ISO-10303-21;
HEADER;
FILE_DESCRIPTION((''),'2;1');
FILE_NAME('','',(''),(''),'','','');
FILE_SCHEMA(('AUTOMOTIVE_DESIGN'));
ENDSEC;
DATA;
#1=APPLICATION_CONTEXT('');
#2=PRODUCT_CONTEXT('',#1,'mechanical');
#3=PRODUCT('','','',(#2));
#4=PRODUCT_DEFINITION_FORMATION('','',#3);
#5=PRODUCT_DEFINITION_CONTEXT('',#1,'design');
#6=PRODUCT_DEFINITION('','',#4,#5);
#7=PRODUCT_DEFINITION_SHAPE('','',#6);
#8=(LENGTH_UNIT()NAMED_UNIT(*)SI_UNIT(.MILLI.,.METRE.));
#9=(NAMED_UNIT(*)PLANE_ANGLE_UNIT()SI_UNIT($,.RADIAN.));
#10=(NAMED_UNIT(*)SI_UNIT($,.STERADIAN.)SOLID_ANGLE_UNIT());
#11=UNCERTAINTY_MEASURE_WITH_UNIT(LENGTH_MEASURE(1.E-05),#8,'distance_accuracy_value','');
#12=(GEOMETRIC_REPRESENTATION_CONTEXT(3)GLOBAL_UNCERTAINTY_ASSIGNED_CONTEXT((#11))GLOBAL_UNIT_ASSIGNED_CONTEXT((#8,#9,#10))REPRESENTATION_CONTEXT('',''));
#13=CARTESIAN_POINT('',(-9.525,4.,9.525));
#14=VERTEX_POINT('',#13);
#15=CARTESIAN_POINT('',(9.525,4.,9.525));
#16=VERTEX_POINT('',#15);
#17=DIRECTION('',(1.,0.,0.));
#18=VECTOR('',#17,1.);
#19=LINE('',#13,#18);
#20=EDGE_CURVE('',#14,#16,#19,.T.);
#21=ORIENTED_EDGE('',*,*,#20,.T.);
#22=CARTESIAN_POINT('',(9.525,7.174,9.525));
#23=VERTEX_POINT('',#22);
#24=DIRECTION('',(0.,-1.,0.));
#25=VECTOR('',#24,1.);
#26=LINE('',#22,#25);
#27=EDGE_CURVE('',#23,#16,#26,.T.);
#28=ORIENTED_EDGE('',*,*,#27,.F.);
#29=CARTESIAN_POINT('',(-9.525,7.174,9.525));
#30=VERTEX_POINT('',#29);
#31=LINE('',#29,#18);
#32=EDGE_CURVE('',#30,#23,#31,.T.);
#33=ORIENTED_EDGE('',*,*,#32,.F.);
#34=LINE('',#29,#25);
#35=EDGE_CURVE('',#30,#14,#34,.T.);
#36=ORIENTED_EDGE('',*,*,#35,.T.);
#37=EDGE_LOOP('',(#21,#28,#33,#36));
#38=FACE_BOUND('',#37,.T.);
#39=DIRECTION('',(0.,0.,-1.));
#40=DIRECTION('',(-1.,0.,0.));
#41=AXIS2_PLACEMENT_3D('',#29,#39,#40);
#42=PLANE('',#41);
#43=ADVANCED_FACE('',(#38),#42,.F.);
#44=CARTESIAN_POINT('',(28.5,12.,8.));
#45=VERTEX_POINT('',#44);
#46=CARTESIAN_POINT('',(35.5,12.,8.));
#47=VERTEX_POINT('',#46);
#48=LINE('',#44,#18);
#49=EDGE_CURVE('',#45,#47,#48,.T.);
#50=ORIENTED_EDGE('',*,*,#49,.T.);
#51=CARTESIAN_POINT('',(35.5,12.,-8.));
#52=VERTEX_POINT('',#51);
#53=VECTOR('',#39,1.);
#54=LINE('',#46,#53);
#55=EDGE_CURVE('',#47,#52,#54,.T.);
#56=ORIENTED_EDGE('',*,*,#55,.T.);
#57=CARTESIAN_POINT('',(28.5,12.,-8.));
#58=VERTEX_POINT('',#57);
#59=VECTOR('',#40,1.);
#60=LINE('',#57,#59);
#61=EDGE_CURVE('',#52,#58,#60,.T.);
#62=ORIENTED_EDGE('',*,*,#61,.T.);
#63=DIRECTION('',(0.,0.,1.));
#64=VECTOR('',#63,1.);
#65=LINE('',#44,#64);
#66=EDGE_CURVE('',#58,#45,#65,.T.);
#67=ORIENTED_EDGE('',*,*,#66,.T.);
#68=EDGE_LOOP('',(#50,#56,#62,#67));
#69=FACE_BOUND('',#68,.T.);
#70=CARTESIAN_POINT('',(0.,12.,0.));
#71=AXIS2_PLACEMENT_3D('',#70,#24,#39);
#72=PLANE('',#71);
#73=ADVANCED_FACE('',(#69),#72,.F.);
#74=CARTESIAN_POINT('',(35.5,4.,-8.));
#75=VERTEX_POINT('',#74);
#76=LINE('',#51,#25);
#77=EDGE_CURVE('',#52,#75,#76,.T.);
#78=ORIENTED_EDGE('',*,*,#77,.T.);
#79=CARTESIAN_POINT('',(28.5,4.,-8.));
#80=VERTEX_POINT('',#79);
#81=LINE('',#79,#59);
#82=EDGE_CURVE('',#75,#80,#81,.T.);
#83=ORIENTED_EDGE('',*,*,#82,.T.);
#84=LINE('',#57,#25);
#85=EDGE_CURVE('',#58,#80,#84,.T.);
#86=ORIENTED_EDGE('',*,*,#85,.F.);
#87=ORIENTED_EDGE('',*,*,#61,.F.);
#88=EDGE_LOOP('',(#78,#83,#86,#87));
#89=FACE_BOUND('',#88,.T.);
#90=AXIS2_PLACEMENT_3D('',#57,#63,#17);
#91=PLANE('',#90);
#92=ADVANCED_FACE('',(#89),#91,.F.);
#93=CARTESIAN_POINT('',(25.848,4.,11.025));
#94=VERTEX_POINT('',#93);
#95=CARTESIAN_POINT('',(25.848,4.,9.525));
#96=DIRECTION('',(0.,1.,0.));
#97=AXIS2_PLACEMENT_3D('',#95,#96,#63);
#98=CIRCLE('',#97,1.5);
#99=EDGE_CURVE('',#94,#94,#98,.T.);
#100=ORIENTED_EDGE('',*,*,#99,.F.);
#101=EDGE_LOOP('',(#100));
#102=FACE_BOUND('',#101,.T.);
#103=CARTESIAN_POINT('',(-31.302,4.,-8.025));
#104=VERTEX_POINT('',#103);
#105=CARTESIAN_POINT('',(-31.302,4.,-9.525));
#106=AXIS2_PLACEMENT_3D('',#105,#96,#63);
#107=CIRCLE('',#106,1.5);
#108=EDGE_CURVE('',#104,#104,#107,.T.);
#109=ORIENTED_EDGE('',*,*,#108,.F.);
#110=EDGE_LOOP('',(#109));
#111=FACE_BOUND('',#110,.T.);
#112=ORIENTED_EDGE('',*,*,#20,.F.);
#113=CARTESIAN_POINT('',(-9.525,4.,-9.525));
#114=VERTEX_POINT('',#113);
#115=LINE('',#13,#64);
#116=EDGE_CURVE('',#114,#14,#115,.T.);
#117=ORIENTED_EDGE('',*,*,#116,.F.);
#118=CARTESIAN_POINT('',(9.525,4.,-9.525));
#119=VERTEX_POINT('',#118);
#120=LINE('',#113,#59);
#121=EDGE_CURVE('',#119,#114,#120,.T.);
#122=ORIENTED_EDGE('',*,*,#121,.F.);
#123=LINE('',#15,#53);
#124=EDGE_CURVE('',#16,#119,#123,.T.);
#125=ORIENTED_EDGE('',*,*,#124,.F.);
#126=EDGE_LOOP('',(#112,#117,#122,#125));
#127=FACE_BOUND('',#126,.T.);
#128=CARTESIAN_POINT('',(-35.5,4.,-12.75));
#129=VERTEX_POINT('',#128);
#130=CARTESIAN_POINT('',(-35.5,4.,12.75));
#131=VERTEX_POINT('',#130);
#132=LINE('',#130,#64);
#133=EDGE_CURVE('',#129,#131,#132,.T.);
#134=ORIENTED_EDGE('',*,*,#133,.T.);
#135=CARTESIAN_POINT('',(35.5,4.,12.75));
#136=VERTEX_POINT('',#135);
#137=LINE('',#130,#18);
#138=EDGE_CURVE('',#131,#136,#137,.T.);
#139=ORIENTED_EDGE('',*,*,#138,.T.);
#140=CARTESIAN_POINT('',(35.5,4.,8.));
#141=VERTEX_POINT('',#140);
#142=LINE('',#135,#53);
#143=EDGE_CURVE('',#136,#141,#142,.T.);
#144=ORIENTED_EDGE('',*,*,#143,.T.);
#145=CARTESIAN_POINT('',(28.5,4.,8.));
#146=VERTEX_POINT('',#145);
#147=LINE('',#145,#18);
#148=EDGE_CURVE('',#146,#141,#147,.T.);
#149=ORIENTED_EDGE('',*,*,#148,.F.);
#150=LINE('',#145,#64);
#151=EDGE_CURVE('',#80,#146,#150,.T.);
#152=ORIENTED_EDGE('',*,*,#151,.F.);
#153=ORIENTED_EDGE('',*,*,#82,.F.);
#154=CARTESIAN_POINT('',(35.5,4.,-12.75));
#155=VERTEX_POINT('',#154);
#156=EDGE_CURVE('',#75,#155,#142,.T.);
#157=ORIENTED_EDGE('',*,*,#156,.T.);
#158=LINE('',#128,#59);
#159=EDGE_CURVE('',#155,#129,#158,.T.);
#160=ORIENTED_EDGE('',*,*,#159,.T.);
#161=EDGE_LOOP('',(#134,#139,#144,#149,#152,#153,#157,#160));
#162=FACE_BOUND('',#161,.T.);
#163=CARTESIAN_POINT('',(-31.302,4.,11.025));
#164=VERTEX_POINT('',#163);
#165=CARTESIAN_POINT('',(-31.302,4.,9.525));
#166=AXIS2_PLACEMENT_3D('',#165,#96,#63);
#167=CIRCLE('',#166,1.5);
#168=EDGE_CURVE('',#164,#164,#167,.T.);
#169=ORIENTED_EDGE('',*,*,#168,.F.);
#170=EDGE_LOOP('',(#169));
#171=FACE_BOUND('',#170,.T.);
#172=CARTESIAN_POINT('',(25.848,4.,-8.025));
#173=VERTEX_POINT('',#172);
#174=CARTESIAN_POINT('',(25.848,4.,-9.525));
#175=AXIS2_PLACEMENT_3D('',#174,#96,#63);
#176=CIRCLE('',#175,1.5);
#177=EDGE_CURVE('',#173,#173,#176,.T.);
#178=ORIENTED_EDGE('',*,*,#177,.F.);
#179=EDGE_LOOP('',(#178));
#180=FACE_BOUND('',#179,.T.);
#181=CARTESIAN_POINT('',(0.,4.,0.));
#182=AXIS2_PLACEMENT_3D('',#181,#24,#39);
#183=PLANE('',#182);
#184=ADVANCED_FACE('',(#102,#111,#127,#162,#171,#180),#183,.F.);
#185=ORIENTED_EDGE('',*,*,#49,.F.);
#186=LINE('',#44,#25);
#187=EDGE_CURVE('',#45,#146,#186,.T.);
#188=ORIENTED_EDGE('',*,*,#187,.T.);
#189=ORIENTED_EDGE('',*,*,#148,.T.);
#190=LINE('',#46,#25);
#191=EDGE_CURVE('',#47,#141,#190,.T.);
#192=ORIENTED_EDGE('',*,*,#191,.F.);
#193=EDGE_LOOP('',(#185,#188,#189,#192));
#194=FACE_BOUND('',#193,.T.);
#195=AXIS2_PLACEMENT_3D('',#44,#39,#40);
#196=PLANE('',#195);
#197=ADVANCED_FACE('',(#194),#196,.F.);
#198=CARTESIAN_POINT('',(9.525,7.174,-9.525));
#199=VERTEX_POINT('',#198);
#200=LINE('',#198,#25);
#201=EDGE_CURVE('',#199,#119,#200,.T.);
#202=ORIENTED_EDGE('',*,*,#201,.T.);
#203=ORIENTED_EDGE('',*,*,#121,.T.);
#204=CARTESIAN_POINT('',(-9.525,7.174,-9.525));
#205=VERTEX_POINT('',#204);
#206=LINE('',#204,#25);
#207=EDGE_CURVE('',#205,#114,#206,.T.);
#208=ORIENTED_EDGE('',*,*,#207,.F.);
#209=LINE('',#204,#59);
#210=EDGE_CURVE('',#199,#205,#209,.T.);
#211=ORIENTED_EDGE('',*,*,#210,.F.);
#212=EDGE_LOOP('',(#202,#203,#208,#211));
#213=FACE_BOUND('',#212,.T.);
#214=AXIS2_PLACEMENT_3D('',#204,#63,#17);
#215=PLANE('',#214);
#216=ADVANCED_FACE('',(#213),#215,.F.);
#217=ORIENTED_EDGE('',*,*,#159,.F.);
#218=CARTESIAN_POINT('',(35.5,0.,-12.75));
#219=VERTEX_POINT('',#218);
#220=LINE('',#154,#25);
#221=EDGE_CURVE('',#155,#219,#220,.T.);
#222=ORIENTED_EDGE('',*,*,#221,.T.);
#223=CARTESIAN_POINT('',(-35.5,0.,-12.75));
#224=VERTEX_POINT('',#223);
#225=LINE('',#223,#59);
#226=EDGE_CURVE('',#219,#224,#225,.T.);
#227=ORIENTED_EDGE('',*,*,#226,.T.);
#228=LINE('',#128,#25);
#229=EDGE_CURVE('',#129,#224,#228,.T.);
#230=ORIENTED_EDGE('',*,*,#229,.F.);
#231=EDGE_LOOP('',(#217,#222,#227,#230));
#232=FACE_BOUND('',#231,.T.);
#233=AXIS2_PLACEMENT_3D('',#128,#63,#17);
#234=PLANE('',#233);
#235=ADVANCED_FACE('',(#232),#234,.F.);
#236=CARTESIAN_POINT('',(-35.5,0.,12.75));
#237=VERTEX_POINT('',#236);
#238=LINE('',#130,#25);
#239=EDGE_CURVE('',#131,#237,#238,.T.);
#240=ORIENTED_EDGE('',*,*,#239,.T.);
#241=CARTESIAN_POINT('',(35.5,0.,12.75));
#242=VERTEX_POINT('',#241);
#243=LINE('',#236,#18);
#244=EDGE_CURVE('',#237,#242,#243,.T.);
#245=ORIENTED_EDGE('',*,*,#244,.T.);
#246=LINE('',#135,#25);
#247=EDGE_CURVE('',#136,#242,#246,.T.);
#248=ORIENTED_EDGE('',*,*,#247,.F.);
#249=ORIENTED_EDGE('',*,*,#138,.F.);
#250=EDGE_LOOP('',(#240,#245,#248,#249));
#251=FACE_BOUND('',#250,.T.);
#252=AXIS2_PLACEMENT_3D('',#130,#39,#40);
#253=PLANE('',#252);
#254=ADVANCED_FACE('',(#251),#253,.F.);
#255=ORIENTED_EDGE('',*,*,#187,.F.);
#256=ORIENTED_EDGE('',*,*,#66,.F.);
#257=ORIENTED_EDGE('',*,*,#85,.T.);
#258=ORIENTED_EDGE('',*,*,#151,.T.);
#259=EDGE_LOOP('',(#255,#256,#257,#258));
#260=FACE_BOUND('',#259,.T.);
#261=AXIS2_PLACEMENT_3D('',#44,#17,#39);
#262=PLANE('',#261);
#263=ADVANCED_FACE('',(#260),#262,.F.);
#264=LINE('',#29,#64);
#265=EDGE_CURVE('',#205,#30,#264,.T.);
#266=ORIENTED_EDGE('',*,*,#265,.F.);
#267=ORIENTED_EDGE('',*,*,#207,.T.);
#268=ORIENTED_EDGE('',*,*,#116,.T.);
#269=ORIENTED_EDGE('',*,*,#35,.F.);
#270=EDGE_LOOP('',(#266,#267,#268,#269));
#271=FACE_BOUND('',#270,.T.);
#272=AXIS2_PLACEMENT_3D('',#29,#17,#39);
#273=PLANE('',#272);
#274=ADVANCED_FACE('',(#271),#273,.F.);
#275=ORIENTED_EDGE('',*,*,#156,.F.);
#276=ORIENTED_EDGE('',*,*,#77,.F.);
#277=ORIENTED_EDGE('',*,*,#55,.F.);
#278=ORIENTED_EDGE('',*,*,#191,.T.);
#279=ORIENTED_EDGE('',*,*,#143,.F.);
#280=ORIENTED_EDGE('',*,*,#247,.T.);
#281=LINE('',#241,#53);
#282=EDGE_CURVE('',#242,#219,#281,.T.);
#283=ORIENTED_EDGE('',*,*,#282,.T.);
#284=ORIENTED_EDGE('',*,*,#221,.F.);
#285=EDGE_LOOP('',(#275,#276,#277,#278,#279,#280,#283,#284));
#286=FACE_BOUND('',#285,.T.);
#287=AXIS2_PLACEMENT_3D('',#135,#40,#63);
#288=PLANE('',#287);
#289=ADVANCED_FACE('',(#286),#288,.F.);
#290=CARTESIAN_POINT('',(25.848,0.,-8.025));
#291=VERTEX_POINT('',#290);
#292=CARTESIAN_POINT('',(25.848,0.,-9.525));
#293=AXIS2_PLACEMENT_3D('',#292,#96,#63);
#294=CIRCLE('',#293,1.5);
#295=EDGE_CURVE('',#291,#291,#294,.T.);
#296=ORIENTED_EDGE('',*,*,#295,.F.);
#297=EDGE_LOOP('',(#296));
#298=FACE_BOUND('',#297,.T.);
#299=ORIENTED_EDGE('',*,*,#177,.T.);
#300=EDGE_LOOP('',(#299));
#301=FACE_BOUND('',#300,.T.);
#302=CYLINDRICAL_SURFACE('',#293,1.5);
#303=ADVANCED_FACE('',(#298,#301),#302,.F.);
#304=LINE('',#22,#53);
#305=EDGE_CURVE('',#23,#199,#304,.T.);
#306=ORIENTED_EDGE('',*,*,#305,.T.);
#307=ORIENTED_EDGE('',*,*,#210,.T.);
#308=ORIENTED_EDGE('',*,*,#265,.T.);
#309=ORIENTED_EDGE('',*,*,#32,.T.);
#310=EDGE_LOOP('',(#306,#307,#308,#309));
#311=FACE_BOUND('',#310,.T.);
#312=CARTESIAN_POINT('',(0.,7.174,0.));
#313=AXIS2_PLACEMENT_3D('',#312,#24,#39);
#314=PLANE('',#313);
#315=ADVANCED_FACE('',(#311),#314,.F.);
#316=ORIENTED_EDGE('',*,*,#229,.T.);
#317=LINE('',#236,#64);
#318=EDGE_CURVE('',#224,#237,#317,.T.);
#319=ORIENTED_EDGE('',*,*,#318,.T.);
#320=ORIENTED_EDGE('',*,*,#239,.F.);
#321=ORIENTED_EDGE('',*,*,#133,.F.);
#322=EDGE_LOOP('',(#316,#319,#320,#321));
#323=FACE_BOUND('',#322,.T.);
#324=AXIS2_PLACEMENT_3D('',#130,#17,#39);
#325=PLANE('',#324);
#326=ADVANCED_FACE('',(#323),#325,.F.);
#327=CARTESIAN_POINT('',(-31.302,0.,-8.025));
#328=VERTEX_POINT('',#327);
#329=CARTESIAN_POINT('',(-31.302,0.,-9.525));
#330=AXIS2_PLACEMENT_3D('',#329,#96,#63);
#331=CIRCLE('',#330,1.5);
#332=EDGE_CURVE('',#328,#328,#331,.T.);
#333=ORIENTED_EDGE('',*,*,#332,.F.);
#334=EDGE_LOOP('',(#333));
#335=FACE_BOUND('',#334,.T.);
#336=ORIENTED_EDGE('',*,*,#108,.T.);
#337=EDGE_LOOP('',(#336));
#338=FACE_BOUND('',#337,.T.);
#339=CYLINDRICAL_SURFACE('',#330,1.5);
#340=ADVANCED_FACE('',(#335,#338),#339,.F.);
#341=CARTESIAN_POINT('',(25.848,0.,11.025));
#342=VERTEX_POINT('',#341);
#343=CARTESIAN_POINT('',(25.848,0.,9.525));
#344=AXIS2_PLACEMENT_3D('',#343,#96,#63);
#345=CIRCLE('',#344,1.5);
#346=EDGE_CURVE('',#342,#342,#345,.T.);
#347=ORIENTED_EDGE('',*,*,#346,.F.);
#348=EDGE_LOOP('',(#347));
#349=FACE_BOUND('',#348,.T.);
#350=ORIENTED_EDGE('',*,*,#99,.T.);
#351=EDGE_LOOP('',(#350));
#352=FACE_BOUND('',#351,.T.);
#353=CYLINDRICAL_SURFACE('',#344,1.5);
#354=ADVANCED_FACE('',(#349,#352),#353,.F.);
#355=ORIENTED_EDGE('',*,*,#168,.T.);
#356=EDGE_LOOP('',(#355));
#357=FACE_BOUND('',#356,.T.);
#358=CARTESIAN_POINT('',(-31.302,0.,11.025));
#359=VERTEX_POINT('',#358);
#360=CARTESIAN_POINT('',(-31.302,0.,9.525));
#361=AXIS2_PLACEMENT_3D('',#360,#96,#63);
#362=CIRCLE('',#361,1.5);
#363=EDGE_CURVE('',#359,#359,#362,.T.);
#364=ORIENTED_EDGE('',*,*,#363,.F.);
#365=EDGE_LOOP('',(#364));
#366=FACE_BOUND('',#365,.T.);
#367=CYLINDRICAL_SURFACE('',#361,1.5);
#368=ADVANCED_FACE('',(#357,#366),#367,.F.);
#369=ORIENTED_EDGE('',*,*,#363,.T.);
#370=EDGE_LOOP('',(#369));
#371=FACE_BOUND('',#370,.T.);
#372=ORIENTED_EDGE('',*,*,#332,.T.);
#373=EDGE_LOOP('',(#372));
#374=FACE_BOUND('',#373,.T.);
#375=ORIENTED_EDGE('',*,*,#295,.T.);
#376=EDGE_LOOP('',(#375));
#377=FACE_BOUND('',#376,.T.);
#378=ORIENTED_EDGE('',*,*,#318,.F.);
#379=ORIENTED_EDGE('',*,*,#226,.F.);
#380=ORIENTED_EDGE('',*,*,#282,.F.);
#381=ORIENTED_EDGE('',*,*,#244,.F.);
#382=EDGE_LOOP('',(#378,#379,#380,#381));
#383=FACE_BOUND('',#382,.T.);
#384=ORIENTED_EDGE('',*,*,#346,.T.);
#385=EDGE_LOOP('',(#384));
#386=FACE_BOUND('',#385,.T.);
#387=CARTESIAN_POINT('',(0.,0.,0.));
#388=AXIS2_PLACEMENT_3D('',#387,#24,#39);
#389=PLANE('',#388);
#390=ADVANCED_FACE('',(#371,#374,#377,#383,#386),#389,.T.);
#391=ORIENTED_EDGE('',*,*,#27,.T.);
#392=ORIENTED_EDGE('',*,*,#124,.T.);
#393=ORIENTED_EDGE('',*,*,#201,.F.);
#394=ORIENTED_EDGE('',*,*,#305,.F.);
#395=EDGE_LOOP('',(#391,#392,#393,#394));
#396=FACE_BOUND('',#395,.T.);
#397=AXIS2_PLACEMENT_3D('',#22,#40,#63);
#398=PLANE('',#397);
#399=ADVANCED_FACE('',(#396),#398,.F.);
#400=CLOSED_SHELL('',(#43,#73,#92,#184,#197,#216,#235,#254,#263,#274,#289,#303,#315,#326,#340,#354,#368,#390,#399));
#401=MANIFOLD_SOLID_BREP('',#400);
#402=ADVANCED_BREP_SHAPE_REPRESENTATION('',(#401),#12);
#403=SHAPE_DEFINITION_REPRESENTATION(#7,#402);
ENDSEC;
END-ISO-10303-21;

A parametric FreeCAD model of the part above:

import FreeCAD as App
import Part
import Sketcher
from FreeCAD import Vector
Q = App.Units.Quantity

doc = App.newDocument("Part")
body = doc.addObject("PartDesign::Body", "Body")

# Sketch on XZ plane
sketch1 = body.newObject("Sketcher::SketchObject", "Sketch")
sketch1.AttachmentSupport = (doc.getObject("XZ_Plane"), [""])
sketch1.MapMode = "FlatFace"
sketch1.addGeometry(Part.LineSegment(Vector(-36, -13, 0), Vector(-36, 13, 0)), False)
sketch1.addGeometry(Part.LineSegment(Vector(-36, 13, 0), Vector(36, 13, 0)), False)
sketch1.addGeometry(Part.LineSegment(Vector(36, 13, 0), Vector(36, -13, 0)), False)
sketch1.addGeometry(Part.LineSegment(Vector(36, -13, 0), Vector(-36, -13, 0)), False)
sketch1.addConstraint(Sketcher.Constraint("Coincident", 0, 2, 1, 1))
sketch1.addConstraint(Sketcher.Constraint("Coincident", 1, 2, 2, 1))
sketch1.addConstraint(Sketcher.Constraint("Coincident", 2, 2, 3, 1))
sketch1.addConstraint(Sketcher.Constraint("Coincident", 3, 2, 0, 1))
sketch1.addConstraint(Sketcher.Constraint("Vertical", 0))
sketch1.addConstraint(Sketcher.Constraint("Horizontal", 1))
sketch1.addConstraint(Sketcher.Constraint("Vertical", 2))
sketch1.addConstraint(Sketcher.Constraint("Horizontal", 3))
sketch1.addConstraint(Sketcher.Constraint("Symmetric", 0, 2, 2, 2, -1, 1))
sketch1.addConstraint(Sketcher.Constraint("DistanceX", 1, 1, 1, 2, Q("71 mm")))
sketch1.addConstraint(Sketcher.Constraint("DistanceY", 0, 1, 0, 2, Q("25.5 mm")))
pad1 = body.newObject("PartDesign::Pad", "Pad")
pad1.Profile = sketch1
pad1.Length = 4
pad1.Reversed = True

# Sketch on XZ plane
sketch2 = body.newObject("Sketcher::SketchObject", "Sketch001")
sketch2.AttachmentSupport = (doc.getObject("XZ_Plane"), [""])
sketch2.MapMode = "FlatFace"
sketch2.AttachmentOffset = App.Placement(Vector(0, 0, -4), App.Rotation())
sketch2.addGeometry(Part.LineSegment(Vector(28, -8, 0), Vector(28, 8, 0)), False)
sketch2.addGeometry(Part.LineSegment(Vector(28, 8, 0), Vector(36, 8, 0)), False)
sketch2.addGeometry(Part.LineSegment(Vector(36, 8, 0), Vector(36, -8, 0)), False)
sketch2.addGeometry(Part.LineSegment(Vector(36, -8, 0), Vector(28, -8, 0)), False)
sketch2.addConstraint(Sketcher.Constraint("Coincident", 0, 2, 1, 1))
sketch2.addConstraint(Sketcher.Constraint("Coincident", 1, 2, 2, 1))
sketch2.addConstraint(Sketcher.Constraint("Coincident", 2, 2, 3, 1))
sketch2.addConstraint(Sketcher.Constraint("Coincident", 3, 2, 0, 1))
sketch2.addConstraint(Sketcher.Constraint("Vertical", 0))
sketch2.addConstraint(Sketcher.Constraint("Horizontal", 1))
sketch2.addConstraint(Sketcher.Constraint("Vertical", 2))
sketch2.addConstraint(Sketcher.Constraint("Horizontal", 3))
sketch2.addConstraint(Sketcher.Constraint("DistanceX", 1, 1, 1, 2, Q("7 mm")))
sketch2.addConstraint(Sketcher.Constraint("DistanceY", 0, 1, 0, 2, Q("16 mm")))
sketch2.addConstraint(Sketcher.Constraint("DistanceY", -1, 1, 0, 2, Q("8 mm")))
sketch2.addConstraint(Sketcher.Constraint("DistanceX", -1, 1, 0, 2, Q("28.5 mm")))
pad2 = body.newObject("PartDesign::Pad", "Pad001")
pad2.Profile = sketch2
pad2.Length = 8
pad2.Reversed = True

# Sketch on XZ plane
sketch3 = body.newObject("Sketcher::SketchObject", "Sketch002")
sketch3.AttachmentSupport = (doc.getObject("XZ_Plane"), [""])
sketch3.MapMode = "FlatFace"
sketch3.AttachmentOffset = App.Placement(Vector(0, 0, -4), App.Rotation())
sketch3.addGeometry(Part.LineSegment(Vector(-10, -10, 0), Vector(-10, 10, 0)), False)
sketch3.addGeometry(Part.LineSegment(Vector(-10, 10, 0), Vector(10, 10, 0)), False)
sketch3.addGeometry(Part.LineSegment(Vector(10, 10, 0), Vector(10, -10, 0)), False)
sketch3.addGeometry(Part.LineSegment(Vector(10, -10, 0), Vector(-10, -10, 0)), False)
sketch3.addConstraint(Sketcher.Constraint("Coincident", 0, 2, 1, 1))
sketch3.addConstraint(Sketcher.Constraint("Coincident", 1, 2, 2, 1))
sketch3.addConstraint(Sketcher.Constraint("Coincident", 2, 2, 3, 1))
sketch3.addConstraint(Sketcher.Constraint("Coincident", 3, 2, 0, 1))
sketch3.addConstraint(Sketcher.Constraint("Vertical", 0))
sketch3.addConstraint(Sketcher.Constraint("Horizontal", 1))
sketch3.addConstraint(Sketcher.Constraint("Vertical", 2))
sketch3.addConstraint(Sketcher.Constraint("Horizontal", 3))
sketch3.addConstraint(Sketcher.Constraint("Symmetric", 0, 2, 2, 2, -1, 1))
sketch3.addConstraint(Sketcher.Constraint("Equal", 3, 0))
sketch3.addConstraint(Sketcher.Constraint("DistanceX", 1, 1, 1, 2, Q("19.05 mm")))
pad3 = body.newObject("PartDesign::Pad", "Pad002")
pad3.Profile = sketch3
pad3.Length = 3.174
pad3.Reversed = True

# Sketch on XZ plane
sketch4 = body.newObject("Sketcher::SketchObject", "Sketch003")
sketch4.AttachmentSupport = (doc.getObject("XZ_Plane"), [""])
sketch4.MapMode = "FlatFace"
sketch4.AttachmentOffset = App.Placement(Vector(0, 0, -4), App.Rotation())
sketch4.addGeometry(Part.Circle(Vector(-31.3, -9.5, 0), Vector(0, 0, 1), 1.5), False)
sketch4.addGeometry(Part.Circle(Vector(-31.3, 9.5, 0), Vector(0, 0, 1), 1.5), False)
sketch4.addGeometry(Part.Circle(Vector(25.8, -9.5, 0), Vector(0, 0, 1), 1.5), False)
sketch4.addGeometry(Part.Circle(Vector(25.8, 9.5, 0), Vector(0, 0, 1), 1.5), False)
sketch4.addConstraint(Sketcher.Constraint("Equal", 0, 1))
sketch4.addConstraint(Sketcher.Constraint("Equal", 1, 2))
sketch4.addConstraint(Sketcher.Constraint("Equal", 2, 3))
sketch4.addConstraint(Sketcher.Constraint("Symmetric", 0, 3, 1, 3, -1))
sketch4.addConstraint(Sketcher.Constraint("Symmetric", 2, 3, 3, 3, -1))
sketch4.addConstraint(Sketcher.Constraint("Horizontal", 0, 3, 2, 3))
sketch4.addConstraint(Sketcher.Constraint("Diameter", 0, Q("3 mm")))
sketch4.addConstraint(Sketcher.Constraint("DistanceY", 0, 3, 1, 3, Q("19.05 mm")))
sketch4.addConstraint(Sketcher.Constraint("DistanceX", 0, 3, 2, 3, Q("57.15 mm")))
sketch4.addConstraint(Sketcher.Constraint("DistanceX", 0, 3, -1, 1, Q("31.302 mm")))
pocket1 = body.newObject("PartDesign::Pocket", "Pocket")
pocket1.Profile = sketch4
pocket1.Type = "ThroughAll"
pocket1.Reversed = True

doc.recompute()
